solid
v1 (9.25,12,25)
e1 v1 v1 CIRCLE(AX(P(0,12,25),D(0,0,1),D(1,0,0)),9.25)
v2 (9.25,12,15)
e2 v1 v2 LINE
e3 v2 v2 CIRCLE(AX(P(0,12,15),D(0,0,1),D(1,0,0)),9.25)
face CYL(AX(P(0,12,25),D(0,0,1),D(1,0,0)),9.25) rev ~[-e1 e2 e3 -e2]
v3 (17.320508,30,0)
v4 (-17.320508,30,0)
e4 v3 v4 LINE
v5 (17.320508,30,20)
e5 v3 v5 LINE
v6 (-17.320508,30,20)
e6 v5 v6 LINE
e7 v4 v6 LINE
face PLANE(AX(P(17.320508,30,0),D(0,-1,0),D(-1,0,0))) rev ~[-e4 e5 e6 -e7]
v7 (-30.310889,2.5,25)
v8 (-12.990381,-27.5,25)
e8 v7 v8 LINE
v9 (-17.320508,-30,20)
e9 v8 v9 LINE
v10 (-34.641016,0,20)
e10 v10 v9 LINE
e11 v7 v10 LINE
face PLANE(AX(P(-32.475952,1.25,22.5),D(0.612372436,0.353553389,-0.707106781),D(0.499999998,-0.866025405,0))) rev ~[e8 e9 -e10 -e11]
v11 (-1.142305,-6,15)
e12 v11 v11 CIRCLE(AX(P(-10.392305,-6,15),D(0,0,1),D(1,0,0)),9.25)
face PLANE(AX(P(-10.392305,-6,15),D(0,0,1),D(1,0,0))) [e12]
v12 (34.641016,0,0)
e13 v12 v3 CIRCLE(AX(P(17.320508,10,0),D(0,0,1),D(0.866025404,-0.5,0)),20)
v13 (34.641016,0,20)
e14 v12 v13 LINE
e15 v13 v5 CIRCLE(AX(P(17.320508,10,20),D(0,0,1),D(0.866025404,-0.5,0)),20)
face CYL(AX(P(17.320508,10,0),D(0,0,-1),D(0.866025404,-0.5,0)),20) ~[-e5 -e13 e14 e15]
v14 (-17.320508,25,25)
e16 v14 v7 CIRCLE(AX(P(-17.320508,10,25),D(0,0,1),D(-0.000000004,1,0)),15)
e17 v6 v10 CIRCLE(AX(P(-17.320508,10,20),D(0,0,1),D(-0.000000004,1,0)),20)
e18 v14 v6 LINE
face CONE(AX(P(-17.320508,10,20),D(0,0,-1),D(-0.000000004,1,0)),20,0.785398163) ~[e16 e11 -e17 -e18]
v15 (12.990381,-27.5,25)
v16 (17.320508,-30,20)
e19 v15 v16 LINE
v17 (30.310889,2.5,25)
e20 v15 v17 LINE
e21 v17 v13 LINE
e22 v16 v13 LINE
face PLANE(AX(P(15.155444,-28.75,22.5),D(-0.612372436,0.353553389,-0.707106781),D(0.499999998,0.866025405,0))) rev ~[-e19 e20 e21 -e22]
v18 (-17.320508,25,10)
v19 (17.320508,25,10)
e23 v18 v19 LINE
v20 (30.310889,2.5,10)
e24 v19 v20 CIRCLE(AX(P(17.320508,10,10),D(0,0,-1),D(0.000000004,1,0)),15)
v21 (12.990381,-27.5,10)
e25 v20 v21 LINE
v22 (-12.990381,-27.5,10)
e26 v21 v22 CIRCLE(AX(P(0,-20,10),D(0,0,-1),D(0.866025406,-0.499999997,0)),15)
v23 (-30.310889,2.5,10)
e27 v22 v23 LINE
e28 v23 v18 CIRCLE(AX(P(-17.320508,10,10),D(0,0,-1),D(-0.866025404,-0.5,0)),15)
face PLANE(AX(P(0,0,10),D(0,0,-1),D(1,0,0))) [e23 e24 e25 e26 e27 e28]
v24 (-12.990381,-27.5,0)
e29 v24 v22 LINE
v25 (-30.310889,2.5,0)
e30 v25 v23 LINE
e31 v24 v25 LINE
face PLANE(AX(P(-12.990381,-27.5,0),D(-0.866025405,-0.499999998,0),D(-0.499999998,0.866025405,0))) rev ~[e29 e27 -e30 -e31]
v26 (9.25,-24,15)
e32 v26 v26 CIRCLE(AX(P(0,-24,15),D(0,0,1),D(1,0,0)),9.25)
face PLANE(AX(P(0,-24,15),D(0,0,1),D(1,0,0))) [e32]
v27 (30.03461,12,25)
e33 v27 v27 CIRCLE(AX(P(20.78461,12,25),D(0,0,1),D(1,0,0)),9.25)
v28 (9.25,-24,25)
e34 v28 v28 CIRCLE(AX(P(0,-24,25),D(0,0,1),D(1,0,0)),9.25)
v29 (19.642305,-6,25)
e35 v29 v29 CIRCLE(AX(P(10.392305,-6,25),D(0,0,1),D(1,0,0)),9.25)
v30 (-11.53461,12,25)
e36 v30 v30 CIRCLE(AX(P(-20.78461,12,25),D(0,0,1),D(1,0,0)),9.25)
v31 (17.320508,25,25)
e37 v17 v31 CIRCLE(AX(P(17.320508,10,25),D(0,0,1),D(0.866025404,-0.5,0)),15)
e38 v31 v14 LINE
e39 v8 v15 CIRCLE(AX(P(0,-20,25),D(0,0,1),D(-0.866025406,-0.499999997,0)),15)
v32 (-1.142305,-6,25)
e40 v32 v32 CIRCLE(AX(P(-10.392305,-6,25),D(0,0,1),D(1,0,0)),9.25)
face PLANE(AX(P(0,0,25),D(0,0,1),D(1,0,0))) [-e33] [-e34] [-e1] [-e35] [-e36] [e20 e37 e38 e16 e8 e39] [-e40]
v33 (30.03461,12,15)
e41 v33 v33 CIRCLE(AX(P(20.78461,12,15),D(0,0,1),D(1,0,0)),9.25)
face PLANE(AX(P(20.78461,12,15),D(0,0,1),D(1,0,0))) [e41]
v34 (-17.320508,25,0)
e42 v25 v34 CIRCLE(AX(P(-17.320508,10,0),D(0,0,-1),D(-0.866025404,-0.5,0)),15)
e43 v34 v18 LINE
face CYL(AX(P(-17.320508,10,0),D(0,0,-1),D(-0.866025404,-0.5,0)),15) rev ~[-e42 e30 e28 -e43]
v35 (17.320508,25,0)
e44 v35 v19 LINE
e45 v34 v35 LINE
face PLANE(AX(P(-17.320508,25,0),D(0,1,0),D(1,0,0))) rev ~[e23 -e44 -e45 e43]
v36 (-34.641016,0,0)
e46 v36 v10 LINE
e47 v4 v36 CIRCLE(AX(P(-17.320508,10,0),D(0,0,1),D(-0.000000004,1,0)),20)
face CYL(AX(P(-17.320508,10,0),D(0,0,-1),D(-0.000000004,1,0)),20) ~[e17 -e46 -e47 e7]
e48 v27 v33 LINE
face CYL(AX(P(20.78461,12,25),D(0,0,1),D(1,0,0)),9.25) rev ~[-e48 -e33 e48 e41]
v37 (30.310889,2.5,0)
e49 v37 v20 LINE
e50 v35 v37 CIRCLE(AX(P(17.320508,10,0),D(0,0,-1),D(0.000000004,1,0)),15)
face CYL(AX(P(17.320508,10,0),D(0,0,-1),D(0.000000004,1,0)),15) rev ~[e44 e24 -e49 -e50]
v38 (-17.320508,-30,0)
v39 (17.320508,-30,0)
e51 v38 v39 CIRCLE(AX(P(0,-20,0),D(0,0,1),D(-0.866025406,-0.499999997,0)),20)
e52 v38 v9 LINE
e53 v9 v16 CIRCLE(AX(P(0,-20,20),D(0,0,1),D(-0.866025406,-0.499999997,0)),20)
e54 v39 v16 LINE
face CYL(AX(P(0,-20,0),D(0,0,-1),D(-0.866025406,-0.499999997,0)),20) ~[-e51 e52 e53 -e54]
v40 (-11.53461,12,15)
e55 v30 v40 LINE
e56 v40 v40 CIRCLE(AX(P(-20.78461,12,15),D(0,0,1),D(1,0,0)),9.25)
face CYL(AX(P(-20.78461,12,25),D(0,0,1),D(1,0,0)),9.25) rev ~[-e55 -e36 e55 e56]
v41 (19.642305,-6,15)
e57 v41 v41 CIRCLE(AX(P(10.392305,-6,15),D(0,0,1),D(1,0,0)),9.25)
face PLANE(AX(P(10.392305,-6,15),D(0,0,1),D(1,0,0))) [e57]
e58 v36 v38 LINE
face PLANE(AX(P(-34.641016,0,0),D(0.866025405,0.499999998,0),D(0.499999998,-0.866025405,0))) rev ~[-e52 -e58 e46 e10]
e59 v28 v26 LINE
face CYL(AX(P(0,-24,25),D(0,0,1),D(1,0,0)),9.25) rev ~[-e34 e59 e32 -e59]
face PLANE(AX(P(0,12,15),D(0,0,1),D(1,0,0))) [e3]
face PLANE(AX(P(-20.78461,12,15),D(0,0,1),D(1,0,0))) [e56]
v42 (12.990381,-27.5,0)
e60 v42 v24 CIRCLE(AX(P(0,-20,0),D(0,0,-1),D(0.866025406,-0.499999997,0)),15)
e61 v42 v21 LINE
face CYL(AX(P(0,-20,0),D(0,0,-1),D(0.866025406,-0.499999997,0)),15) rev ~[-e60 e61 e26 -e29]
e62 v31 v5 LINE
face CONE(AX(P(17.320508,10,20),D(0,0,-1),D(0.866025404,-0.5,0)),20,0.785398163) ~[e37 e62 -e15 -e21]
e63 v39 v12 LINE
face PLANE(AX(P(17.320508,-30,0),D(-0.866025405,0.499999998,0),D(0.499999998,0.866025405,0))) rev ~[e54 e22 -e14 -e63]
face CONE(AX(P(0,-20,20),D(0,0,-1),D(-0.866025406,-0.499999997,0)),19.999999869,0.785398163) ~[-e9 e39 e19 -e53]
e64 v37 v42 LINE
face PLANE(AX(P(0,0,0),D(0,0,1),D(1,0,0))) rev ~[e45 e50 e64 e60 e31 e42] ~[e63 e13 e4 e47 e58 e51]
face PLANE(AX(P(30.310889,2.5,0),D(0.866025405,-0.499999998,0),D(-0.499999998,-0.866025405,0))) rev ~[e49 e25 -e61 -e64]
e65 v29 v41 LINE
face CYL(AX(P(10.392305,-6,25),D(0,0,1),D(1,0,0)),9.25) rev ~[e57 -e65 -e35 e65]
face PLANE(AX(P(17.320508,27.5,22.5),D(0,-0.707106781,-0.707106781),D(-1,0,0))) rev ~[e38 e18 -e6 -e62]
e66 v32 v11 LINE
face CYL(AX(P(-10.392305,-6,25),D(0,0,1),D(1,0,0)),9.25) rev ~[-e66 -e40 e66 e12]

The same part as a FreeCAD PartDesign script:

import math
import FreeCAD as App
import Part
import Sketcher
from FreeCAD import Vector
Q = App.Units.Quantity


def edges_at(feature, points):
    """Names of the edges that pass closest to the given points."""
    edges = feature.Shape.Edges
    near = lambda p: min(range(len(edges)), key=lambda i: edges[i].distToShape(Part.Vertex(*p))[0])
    return sorted({f"Edge{near(p) + 1}" for p in points})

doc = App.newDocument("Part")
params = doc.addObject("Spreadsheet::Sheet", "Params")
for row, (alias, value) in enumerate([
    ("sketch1_radius", "20 mm"),
    ("pad1_length", "25 mm"),
    ("sketch2_diameter", "18.5 mm"),
    ("pocket1_length", "10 mm"),
    ("chamfer_size", "5 mm"),
    ("sketch3_radius", "15 mm"),
    ("pocket2_length", "10 mm"),
], start=1):
    params.set(f"A{row}", alias)
    params.set(f"B{row}", "=" + value)
    params.setAlias(f"B{row}", alias)

body = doc.addObject("PartDesign::Body", "Body")

# Sketch on XY plane
sketch1 = body.newObject("Sketcher::SketchObject", "Sketch")
sketch1.AttachmentSupport = (doc.getObject("XY_Plane"), [""])
sketch1.MapMode = "FlatFace"
sketch1.addGeometry(Part.LineSegment(Vector(17, 30, 0), Vector(-17, 30, 0)), False)
sketch1.addGeometry(Part.ArcOfCircle(Part.Circle(Vector(-17, 10, 0), Vector(0, 0, 1), 20), math.radians(90), math.radians(210)), False)
sketch1.addGeometry(Part.LineSegment(Vector(-35, 0, 0), Vector(-17, -30, 0)), False)
sketch1.addGeometry(Part.ArcOfCircle(Part.Circle(Vector(0, -20, 0), Vector(0, 0, 1), 20), math.radians(-150), math.radians(-30)), False)
sketch1.addGeometry(Part.LineSegment(Vector(17, -30, 0), Vector(35, 0, 0)), False)
sketch1.addGeometry(Part.ArcOfCircle(Part.Circle(Vector(17, 10, 0), Vector(0, 0, 1), 20), math.radians(-30), math.radians(90)), False)
sketch1.addConstraint(Sketcher.Constraint("Tangent", 0, 2, 1, 1))
sketch1.addConstraint(Sketcher.Constraint("Tangent", 1, 2, 2, 1))
sketch1.addConstraint(Sketcher.Constraint("Tangent", 2, 2, 3, 1))
sketch1.addConstraint(Sketcher.Constraint("Tangent", 3, 2, 4, 1))
sketch1.addConstraint(Sketcher.Constraint("Tangent", 4, 2, 5, 1))
sketch1.addConstraint(Sketcher.Constraint("Tangent", 5, 2, 0, 1))
sketch1.addConstraint(Sketcher.Constraint("Horizontal", 0))
sketch1.addConstraint(Sketcher.Constraint("Equal", 1, 3))
sketch1.addConstraint(Sketcher.Constraint("Equal", 3, 5))
sketch1.addConstraint(Sketcher.Constraint("Symmetric", 0, 2, 3, 2, -1, 1))
sketch1.addConstraint(Sketcher.Constraint("Symmetric", 1, 2, 4, 2, -1, 1))
sketch1.addConstraint(Sketcher.Constraint("PointOnObject", 3, 3, -2))
sketch1.addConstraint(Sketcher.Constraint("Radius", 1, 20.0))
sketch1.setExpression("Constraints[12]", "Params.sketch1_radius")
pad1 = body.newObject("PartDesign::Pad", "Pad")
pad1.Profile = sketch1
pad1.setExpression("Length", "Params.pad1_length")

# Sketch on XY plane
sketch2 = body.newObject("Sketcher::SketchObject", "Sketch001")
sketch2.AttachmentSupport = (doc.getObject("XY_Plane"), [""])
sketch2.MapMode = "FlatFace"
sketch2.AttachmentOffset = App.Placement(Vector(0, 0, 25), App.Rotation())
sketch2.addGeometry(Part.Circle(Vector(-21, 12, 0), Vector(0, 0, 1), 9), False)
sketch2.addGeometry(Part.Circle(Vector(0, -24, 0), Vector(0, 0, 1), 9), False)
sketch2.addGeometry(Part.Circle(Vector(21, 12, 0), Vector(0, 0, 1), 9), False)
sketch2.addGeometry(Part.Circle(Vector(0, 12, 0), Vector(0, 0, 1), 9), False)
sketch2.addGeometry(Part.Circle(Vector(-10, -6, 0), Vector(0, 0, 1), 9), False)
sketch2.addGeometry(Part.Circle(Vector(10, -6, 0), Vector(0, 0, 1), 9), False)
sketch2.addConstraint(Sketcher.Constraint("Equal", 0, 1))
sketch2.addConstraint(Sketcher.Constraint("Equal", 1, 2))
sketch2.addConstraint(Sketcher.Constraint("Equal", 2, 3))
sketch2.addConstraint(Sketcher.Constraint("Equal", 3, 4))
sketch2.addConstraint(Sketcher.Constraint("Equal", 4, 5))
sketch2.addConstraint(Sketcher.Constraint("Symmetric", 0, 3, 2, 3, -2))
sketch2.addConstraint(Sketcher.Constraint("Symmetric", 4, 3, 5, 3, -2))
sketch2.addConstraint(Sketcher.Constraint("PointOnObject", 1, 3, -2))
sketch2.addConstraint(Sketcher.Constraint("PointOnObject", 3, 3, -2))
sketch2.addConstraint(Sketcher.Constraint("Horizontal", 2, 3, 3, 3))
sketch2.addConstraint(Sketcher.Constraint("Diameter", 0, 18.5))
sketch2.addConstraint(Sketcher.Constraint("DistanceY", -1, 1, 0, 3, 12.0))
sketch2.addConstraint(Sketcher.Constraint("DistanceY", 1, 3, -1, 1, 24.0))
sketch2.addConstraint(Sketcher.Constraint("DistanceY", 4, 3, -1, 1, 6.0))
sketch2.addConstraint(Sketcher.Constraint("DistanceX", 0, 3, -1, 1, 20.78461))
sketch2.addConstraint(Sketcher.Constraint("DistanceX", 4, 3, 5, 3, 20.78461))
sketch2.setExpression("Constraints[10]", "Params.sketch2_diameter")
pocket1 = body.newObject("PartDesign::Pocket", "Pocket")
pocket1.Profile = sketch2
pocket1.setExpression("Length", "Params.pocket1_length")
doc.recompute()

chamfer = body.newObject("PartDesign::Chamfer", "Chamfer")
chamfer.Base = (pocket1, edges_at(pocket1, [(25.981, -15, 25)]))
chamfer.setExpression("Size", "Params.chamfer_size")

# Sketch on XY plane
sketch3 = body.newObject("Sketcher::SketchObject", "Sketch002")
sketch3.AttachmentSupport = (doc.getObject("XY_Plane"), [""])
sketch3.MapMode = "FlatFace"
sketch3.addGeometry(Part.ArcOfCircle(Part.Circle(Vector(0, -20, 0), Vector(0, 0, 1), 15), math.radians(-150), math.radians(-30)), False)
sketch3.addGeometry(Part.LineSegment(Vector(-13, -28, 0), Vector(-30, 2, 0)), False)
sketch3.addGeometry(Part.ArcOfCircle(Part.Circle(Vector(-17, 10, 0), Vector(0, 0, 1), 15), math.radians(90), math.radians(210)), False)
sketch3.addGeometry(Part.LineSegment(Vector(-17, 25, 0), Vector(17, 25, 0)), False)
sketch3.addGeometry(Part.ArcOfCircle(Part.Circle(Vector(17, 10, 0), Vector(0, 0, 1), 15), math.radians(-30), math.radians(90)), False)
sketch3.addGeometry(Part.LineSegment(Vector(30, 2, 0), Vector(13, -28, 0)), False)
sketch3.addConstraint(Sketcher.Constraint("Tangent", 0, 1, 1, 1))
sketch3.addConstraint(Sketcher.Constraint("Tangent", 1, 2, 2, 2))
sketch3.addConstraint(Sketcher.Constraint("Tangent", 2, 1, 3, 1))
sketch3.addConstraint(Sketcher.Constraint("Tangent", 3, 2, 4, 2))
sketch3.addConstraint(Sketcher.Constraint("Tangent", 4, 1, 5, 1))
sketch3.addConstraint(Sketcher.Constraint("Tangent", 5, 2, 0, 2))
sketch3.addConstraint(Sketcher.Constraint("Horizontal", 3))
sketch3.addConstraint(Sketcher.Constraint("Equal", 0, 2))
sketch3.addConstraint(Sketcher.Constraint("Equal", 2, 4))
sketch3.addConstraint(Sketcher.Constraint("Symmetric", 1, 2, 4, 1, -2))
sketch3.addConstraint(Sketcher.Constraint("Radius", 0, 15.0))
sketch3.addConstraint(Sketcher.Constraint("Angle", 1, Q("120 deg")))
sketch3.addConstraint(Sketcher.Constraint("DistanceY", 0, 3, -1, 1, 20.0))
sketch3.addConstraint(Sketcher.Constraint("DistanceY", -1, 1, 2, 3, 10.0))
sketch3.setExpression("Constraints[10]", "Params.sketch3_radius")
pocket2 = body.newObject("PartDesign::Pocket", "Pocket001")
pocket2.Profile = sketch3
pocket2.setExpression("Length", "Params.pocket2_length")
pocket2.Reversed = True

doc.recompute()
